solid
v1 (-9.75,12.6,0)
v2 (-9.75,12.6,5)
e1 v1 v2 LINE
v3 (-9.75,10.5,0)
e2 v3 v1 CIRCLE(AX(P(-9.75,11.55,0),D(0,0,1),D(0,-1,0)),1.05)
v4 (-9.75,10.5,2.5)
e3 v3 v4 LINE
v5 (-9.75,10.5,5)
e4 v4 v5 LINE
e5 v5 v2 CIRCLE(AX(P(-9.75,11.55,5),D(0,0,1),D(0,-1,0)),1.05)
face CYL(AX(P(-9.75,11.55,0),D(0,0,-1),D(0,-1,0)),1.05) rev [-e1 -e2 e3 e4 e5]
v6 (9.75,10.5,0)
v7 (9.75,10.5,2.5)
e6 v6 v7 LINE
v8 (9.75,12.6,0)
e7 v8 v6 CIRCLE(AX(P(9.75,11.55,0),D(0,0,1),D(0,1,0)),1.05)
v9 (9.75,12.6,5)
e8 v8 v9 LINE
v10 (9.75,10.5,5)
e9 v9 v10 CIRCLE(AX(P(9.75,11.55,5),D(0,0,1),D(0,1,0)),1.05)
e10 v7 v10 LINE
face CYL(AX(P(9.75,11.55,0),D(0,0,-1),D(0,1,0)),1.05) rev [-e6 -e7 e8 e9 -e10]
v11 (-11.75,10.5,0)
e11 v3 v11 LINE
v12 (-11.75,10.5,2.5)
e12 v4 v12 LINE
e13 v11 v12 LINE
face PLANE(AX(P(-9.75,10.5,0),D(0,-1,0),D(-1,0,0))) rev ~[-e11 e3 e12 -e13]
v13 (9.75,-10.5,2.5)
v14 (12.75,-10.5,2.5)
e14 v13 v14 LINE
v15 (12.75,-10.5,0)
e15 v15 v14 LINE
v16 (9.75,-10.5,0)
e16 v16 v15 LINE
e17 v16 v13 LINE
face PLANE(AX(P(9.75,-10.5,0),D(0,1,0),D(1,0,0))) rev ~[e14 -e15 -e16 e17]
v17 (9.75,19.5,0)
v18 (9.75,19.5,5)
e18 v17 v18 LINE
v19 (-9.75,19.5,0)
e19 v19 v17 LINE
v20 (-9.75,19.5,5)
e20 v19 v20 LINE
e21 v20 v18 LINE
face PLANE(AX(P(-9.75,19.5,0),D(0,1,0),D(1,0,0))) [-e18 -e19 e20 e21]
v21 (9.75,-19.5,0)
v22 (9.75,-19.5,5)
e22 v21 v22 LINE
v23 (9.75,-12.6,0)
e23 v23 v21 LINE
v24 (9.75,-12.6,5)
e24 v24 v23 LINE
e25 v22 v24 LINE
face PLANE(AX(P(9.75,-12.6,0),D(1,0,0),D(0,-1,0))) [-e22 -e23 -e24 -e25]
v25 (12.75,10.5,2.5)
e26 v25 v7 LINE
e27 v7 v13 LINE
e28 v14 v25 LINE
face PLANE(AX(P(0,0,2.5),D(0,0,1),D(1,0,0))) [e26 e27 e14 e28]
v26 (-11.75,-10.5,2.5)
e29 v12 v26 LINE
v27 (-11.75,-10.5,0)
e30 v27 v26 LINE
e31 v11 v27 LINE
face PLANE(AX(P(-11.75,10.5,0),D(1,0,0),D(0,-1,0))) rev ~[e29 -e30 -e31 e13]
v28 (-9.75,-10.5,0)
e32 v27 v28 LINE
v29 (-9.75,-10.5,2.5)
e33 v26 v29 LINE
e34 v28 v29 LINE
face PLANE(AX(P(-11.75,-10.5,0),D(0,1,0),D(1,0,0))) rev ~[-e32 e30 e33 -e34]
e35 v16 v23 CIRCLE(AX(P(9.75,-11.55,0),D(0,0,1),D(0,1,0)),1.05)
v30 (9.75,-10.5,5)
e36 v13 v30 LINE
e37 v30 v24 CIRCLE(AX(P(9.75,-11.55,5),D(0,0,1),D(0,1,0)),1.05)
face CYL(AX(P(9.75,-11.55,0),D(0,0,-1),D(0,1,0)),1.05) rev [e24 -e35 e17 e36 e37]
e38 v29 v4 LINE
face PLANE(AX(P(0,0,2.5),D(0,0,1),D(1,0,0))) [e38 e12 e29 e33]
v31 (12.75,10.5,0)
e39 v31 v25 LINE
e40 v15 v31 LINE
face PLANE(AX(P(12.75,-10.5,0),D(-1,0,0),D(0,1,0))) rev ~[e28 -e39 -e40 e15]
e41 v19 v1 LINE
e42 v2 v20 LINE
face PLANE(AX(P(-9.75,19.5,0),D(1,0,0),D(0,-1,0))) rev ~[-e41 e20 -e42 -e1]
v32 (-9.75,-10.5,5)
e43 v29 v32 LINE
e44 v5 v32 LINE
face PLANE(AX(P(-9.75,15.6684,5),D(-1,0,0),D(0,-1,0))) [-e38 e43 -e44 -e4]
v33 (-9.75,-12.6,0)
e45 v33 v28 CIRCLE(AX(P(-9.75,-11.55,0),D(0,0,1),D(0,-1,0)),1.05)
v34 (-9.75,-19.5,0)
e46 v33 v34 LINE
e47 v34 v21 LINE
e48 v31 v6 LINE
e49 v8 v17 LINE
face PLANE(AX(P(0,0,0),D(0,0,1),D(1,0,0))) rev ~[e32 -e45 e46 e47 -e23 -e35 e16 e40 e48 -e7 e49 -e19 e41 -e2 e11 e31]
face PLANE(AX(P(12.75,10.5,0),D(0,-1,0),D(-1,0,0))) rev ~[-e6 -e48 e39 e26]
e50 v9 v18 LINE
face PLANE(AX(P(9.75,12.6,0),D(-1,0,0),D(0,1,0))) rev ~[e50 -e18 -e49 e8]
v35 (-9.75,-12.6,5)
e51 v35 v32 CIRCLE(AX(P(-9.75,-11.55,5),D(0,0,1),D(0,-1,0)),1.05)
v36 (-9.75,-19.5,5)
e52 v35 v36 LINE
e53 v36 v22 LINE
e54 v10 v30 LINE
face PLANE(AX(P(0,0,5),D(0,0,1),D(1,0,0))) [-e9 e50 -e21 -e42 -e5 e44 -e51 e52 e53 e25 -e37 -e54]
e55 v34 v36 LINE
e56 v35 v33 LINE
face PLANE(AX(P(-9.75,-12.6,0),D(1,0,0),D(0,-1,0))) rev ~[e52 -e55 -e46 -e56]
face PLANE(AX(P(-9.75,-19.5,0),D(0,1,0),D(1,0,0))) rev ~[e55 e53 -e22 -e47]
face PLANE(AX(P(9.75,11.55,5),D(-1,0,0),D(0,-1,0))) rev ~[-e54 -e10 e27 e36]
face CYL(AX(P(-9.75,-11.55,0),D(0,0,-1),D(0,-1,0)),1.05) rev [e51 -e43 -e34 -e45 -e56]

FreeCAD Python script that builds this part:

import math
import FreeCAD as App
import Part
import Sketcher

doc = App.newDocument("Part")
params = doc.addObject("Spreadsheet::Sheet", "Params")
for row, (alias, value) in enumerate([
    ("sketch1_width", "2 mm"),
    ("sketch1_width2", "3 mm"),
    ("sketch1_radius", "1.05 mm"),
    ("sketch1_width3", "19.5 mm"),
    ("pad1_length", "5 mm"),
    ("pocket1_length", "2.5 mm"),
], start=1):
    params.set(f"A{row}", alias)
    params.set(f"B{row}", "=" + value)
    params.setAlias(f"B{row}", alias)

body = doc.addObject("PartDesign::Body", "Body")

# Sketch on XY plane
sketch1 = body.newObject("Sketcher::SketchObject", "Sketch")
sketch1.AttachmentSupport = (doc.getObject("XY_Plane"), [""])
sketch1.MapMode = "FlatFace"
sketch1.addGeometry([
    Part.LineSegment(App.Vector(9.8, 19.5, 0), App.Vector(-9.8, 19.5, 0)),  # 0
    Part.LineSegment(App.Vector(-9.8, 19.5, 0), App.Vector(-9.8, 12.6, 0)),  # 1
    Part.ArcOfCircle(Part.Circle(App.Vector(-9.8, 11.6, 0), App.Vector(0, 0, 1), 1.1), math.radians(-90), math.radians(90)),  # 2
    Part.LineSegment(App.Vector(-9.8, 10.5, 0), App.Vector(-11.8, 10.5, 0)),  # 3
    Part.LineSegment(App.Vector(-11.8, 10.5, 0), App.Vector(-11.8, -10.5, 0)),  # 4
    Part.LineSegment(App.Vector(-11.8, -10.5, 0), App.Vector(-9.8, -10.5, 0)),  # 5
    Part.ArcOfCircle(Part.Circle(App.Vector(-9.8, -11.6, 0), App.Vector(0, 0, 1), 1.1), math.radians(-90), math.radians(90)),  # 6
    Part.LineSegment(App.Vector(-9.8, -12.6, 0), App.Vector(-9.8, -19.5, 0)),  # 7
    Part.LineSegment(App.Vector(-9.8, -19.5, 0), App.Vector(9.8, -19.5, 0)),  # 8
    Part.LineSegment(App.Vector(9.8, -19.5, 0), App.Vector(9.8, -12.6, 0)),  # 9
    Part.ArcOfCircle(Part.Circle(App.Vector(9.8, -11.6, 0), App.Vector(0, 0, 1), 1.1), math.radians(90), math.radians(270)),  # 10
    Part.LineSegment(App.Vector(9.8, -10.5, 0), App.Vector(12.8, -10.5, 0)),  # 11
    Part.LineSegment(App.Vector(12.8, -10.5, 0), App.Vector(12.8, 10.5, 0)),  # 12
    Part.LineSegment(App.Vector(12.8, 10.5, 0), App.Vector(9.8, 10.5, 0)),  # 13
    Part.ArcOfCircle(Part.Circle(App.Vector(9.8, 11.6, 0), App.Vector(0, 0, 1), 1.1), math.radians(90), math.radians(270)),  # 14
    Part.LineSegment(App.Vector(9.8, 12.6, 0), App.Vector(9.8, 19.5, 0)),  # 15
], False)
sketch1.addConstraint([
    Sketcher.Constraint("Coincident", 0, 2, 1, 1),
    Sketcher.Constraint("Coincident", 1, 2, 2, 2),
    Sketcher.Constraint("Tangent", 2, 1, 3, 1),
    Sketcher.Constraint("Coincident", 3, 2, 4, 1),
    Sketcher.Constraint("Coincident", 4, 2, 5, 1),
    Sketcher.Constraint("Tangent", 5, 2, 6, 2),
    Sketcher.Constraint("Coincident", 6, 1, 7, 1),
    Sketcher.Constraint("Coincident", 7, 2, 8, 1),
    Sketcher.Constraint("Coincident", 8, 2, 9, 1),
    Sketcher.Constraint("Coincident", 9, 2, 10, 2),
    Sketcher.Constraint("Tangent", 10, 1, 11, 1),
    Sketcher.Constraint("Coincident", 11, 2, 12, 1),
    Sketcher.Constraint("Coincident", 12, 2, 13, 1),
    Sketcher.Constraint("Tangent", 13, 2, 14, 2),
    Sketcher.Constraint("Coincident", 14, 1, 15, 1),
    Sketcher.Constraint("Coincident", 15, 2, 0, 1),
    Sketcher.Constraint("Horizontal", 0),
    Sketcher.Constraint("Vertical", 1),
    Sketcher.Constraint("Horizontal", 3),
    Sketcher.Constraint("Vertical", 4),
    Sketcher.Constraint("Horizontal", 5),
    Sketcher.Constraint("Vertical", 7),
    Sketcher.Constraint("Horizontal", 8),
    Sketcher.Constraint("Vertical", 9),
    Sketcher.Constraint("Horizontal", 11),
    Sketcher.Constraint("Vertical", 12),
    Sketcher.Constraint("Horizontal", 13),
    Sketcher.Constraint("Vertical", 15),
    Sketcher.Constraint("Equal", 2, 6),
    Sketcher.Constraint("Equal", 6, 10),
    Sketcher.Constraint("Equal", 10, 14),
    Sketcher.Constraint("Symmetric", 2, 3, 10, 3, -1, 1),
    Sketcher.Constraint("Symmetric", 6, 3, 14, 3, -1, 1),
    Sketcher.Constraint("Symmetric", 0, 2, 8, 2, -1, 1),
    Sketcher.Constraint("Symmetric", 6, 3, 10, 3, -2),
    Sketcher.Constraint("Vertical", 6, 3, 0, 2),
    Sketcher.Constraint("Vertical", 5, 2, 6, 1),
    Sketcher.Constraint("Vertical", 13, 2, 14, 1),
    Sketcher.Constraint("DistanceX", 3, 2, 3, 1, 2.0),
    Sketcher.Constraint("DistanceX", 11, 1, 11, 2, 3.0),
    Sketcher.Constraint("Radius", 2, 1.05),
    Sketcher.Constraint("DistanceX", 0, 2, 0, 1, 19.5),
    Sketcher.Constraint("DistanceY", 2, 1, 0, 2, 9.0),
    Sketcher.Constraint("DistanceY", -1, 1, 0, 2, 19.5),
])
sketch1.setExpression("Constraints[38]", "Params.sketch1_width")
sketch1.setExpression("Constraints[39]", "Params.sketch1_width2")
sketch1.setExpression("Constraints[40]", "Params.sketch1_radius")
sketch1.setExpression("Constraints[41]", "Params.sketch1_width3")
pad1 = body.newObject("PartDesign::Pad", "Pad")
pad1.Profile = sketch1
pad1.setExpression("Length", "Params.pad1_length")

# Sketch on XY plane
sketch2 = body.newObject("Sketcher::SketchObject", "Sketch001")
sketch2.AttachmentSupport = (doc.getObject("XY_Plane"), [""])
sketch2.MapMode = "FlatFace"
sketch2.AttachmentOffset = App.Placement(App.Vector(0, 0, 5), App.Rotation())
sketch2.addGeometry([
    Part.LineSegment(App.Vector(-9.8, -16.7, 0), App.Vector(-9.8, 15.7, 0)),  # 0
    Part.LineSegment(App.Vector(-9.8, 15.7, 0), App.Vector(-14.3, 15.7, 0)),  # 1
    Part.LineSegment(App.Vector(-14.3, 15.7, 0), App.Vector(-14.3, -16.7, 0)),  # 2
    Part.LineSegment(App.Vector(-14.3, -16.7, 0), App.Vector(-9.8, -16.7, 0)),  # 3
    Part.LineSegment(App.Vector(15.2, -15.9, 0), App.Vector(15.2, 11.6, 0)),  # 4
    Part.LineSegment(App.Vector(15.2, 11.6, 0), App.Vector(9.8, 11.6, 0)),  # 5
    Part.LineSegment(App.Vector(9.8, 11.6, 0), App.Vector(9.8, -15.9, 0)),  # 6
    Part.LineSegment(App.Vector(9.8, -15.9, 0), App.Vector(15.2, -15.9, 0)),  # 7
], False)
sketch2.addConstraint([
    Sketcher.Constraint("Coincident", 0, 2, 1, 1),
    Sketcher.Constraint("Coincident", 1, 2, 2, 1),
    Sketcher.Constraint("Coincident", 2, 2, 3, 1),
    Sketcher.Constraint("Coincident", 3, 2, 0, 1),
    Sketcher.Constraint("Coincident", 4, 2, 5, 1),
    Sketcher.Constraint("Coincident", 5, 2, 6, 1),
    Sketcher.Constraint("Coincident", 6, 2, 7, 1),
    Sketcher.Constraint("Coincident", 7, 2, 4, 1),
    Sketcher.Constraint("Vertical", 0),
    Sketcher.Constraint("Horizontal", 1),
    Sketcher.Constraint("Vertical", 2),
    Sketcher.Constraint("Horizontal", 3),
    Sketcher.Constraint("Vertical", 4),
    Sketcher.Constraint("Horizontal", 5),
    Sketcher.Constraint("Vertical", 6),
    Sketcher.Constraint("Horizontal", 7),
    Sketcher.Constraint("DistanceX", 0, 2, 5, 2, 19.5),
    Sketcher.Constraint("DistanceX", 0, 2, -1, 1, 9.75),
    Sketcher.Constraint("DistanceY", -1, 1, 4, 2, 11.55),
    Sketcher.Constraint("DistanceX", 1, 2, 1, 1, 4.5807),
    Sketcher.Constraint("DistanceX", 5, 2, 5, 1, 5.4714),
    Sketcher.Constraint("DistanceY", 0, 1, 0, 2, 32.3832),
    Sketcher.Constraint("DistanceY", 4, 1, 4, 2, 27.4578),
    Sketcher.Constraint("DistanceY", 3, 2, 6, 2, 0.807),
])
pocket1 = body.newObject("PartDesign::Pocket", "Pocket")
pocket1.Profile = sketch2
pocket1.setExpression("Length", "Params.pocket1_length")

doc.recompute()
